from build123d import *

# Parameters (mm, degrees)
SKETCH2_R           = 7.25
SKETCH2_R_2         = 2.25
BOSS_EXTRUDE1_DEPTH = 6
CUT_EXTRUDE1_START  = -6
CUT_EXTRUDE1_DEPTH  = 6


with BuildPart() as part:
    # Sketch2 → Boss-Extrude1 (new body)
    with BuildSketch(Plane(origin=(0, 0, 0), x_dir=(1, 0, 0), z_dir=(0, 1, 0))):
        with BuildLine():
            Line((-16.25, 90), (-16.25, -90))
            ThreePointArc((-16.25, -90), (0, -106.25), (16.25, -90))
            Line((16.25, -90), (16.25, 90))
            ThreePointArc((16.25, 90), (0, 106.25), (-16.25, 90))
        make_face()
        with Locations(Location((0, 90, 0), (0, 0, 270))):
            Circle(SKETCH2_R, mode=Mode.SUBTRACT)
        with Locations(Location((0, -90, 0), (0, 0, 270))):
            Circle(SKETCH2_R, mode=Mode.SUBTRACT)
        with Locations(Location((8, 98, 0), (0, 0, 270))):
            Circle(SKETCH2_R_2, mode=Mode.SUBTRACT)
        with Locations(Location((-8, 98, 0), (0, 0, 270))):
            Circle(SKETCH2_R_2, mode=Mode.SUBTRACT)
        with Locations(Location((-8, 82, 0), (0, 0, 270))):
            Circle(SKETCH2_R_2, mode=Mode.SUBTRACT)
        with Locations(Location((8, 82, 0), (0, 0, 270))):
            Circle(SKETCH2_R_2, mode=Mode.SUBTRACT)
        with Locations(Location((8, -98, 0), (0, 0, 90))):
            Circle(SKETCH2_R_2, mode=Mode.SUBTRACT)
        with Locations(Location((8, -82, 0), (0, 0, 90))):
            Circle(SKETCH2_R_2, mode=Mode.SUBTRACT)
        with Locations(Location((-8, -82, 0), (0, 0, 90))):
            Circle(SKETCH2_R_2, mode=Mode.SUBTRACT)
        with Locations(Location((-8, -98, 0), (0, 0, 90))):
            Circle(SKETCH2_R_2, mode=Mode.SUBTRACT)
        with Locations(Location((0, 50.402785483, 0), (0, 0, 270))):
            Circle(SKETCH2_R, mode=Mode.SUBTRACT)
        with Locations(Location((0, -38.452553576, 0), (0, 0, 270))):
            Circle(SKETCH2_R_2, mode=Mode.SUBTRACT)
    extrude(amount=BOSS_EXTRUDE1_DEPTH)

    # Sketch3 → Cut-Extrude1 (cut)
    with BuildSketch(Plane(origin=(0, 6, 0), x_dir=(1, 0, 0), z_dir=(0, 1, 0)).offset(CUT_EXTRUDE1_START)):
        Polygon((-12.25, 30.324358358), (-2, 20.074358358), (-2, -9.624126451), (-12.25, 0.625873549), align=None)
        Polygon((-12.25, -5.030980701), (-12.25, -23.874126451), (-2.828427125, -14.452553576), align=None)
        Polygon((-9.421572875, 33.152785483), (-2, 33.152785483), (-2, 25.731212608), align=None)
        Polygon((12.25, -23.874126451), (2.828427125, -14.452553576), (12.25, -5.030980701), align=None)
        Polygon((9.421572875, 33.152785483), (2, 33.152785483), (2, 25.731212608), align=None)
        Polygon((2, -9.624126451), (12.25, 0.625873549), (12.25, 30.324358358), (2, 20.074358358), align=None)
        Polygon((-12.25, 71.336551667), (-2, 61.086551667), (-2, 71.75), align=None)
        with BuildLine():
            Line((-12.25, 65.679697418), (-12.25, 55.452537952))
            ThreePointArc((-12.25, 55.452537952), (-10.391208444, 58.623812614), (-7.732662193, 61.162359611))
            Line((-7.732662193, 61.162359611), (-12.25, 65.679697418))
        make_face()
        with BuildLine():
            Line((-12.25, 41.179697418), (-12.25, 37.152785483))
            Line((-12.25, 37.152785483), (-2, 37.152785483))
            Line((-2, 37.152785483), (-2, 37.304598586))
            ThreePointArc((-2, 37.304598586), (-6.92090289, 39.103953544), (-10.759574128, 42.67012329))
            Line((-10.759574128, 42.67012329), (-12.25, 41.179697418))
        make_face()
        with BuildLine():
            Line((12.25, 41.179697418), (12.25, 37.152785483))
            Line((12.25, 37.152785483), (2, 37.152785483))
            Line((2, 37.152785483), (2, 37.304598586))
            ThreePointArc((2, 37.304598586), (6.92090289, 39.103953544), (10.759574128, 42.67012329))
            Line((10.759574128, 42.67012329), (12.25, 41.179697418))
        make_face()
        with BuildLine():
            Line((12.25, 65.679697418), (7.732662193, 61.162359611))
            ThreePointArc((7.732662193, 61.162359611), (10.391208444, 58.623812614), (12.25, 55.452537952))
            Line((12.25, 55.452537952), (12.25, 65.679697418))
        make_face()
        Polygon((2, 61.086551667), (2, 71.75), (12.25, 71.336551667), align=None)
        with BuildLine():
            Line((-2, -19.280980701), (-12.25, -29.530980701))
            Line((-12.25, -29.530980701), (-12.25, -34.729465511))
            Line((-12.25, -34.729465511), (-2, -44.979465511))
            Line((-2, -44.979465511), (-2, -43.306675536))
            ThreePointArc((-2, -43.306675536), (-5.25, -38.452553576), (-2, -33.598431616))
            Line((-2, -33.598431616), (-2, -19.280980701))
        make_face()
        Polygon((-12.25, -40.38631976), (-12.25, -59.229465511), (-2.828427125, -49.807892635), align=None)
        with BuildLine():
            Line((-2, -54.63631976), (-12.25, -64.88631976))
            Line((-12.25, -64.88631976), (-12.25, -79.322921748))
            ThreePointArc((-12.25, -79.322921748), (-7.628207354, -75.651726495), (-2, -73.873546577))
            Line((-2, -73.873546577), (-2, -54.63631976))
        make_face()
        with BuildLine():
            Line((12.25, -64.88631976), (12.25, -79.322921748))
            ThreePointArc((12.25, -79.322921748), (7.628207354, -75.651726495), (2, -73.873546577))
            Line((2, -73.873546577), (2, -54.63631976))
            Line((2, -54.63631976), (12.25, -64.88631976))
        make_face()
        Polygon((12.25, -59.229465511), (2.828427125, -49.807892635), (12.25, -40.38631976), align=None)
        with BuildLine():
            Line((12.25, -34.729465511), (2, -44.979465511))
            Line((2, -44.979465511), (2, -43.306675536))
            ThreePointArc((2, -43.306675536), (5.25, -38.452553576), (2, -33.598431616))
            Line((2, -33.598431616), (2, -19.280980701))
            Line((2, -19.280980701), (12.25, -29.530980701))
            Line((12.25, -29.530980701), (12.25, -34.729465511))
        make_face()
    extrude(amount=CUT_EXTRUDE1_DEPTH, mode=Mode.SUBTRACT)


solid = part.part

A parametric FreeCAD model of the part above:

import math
import FreeCAD as App
import Part
import Sketcher


def add_polygon(sketch, points):
    """Adds a closed chain of lines whose ends are joined by coincident constraints."""
    first, n = sketch.GeometryCount, len(points)
    for a, b in zip(points, points[1:] + points[:1]):
        sketch.addGeometry(Part.LineSegment(App.Vector(*a, 0), App.Vector(*b, 0)), False)
    for i in range(n):
        sketch.addConstraint(Sketcher.Constraint("Coincident", first + i, 2, first + (i + 1) % n, 1))

doc = App.newDocument("Part")
body = doc.addObject("PartDesign::Body", "Body")

sketch1 = body.newObject("Sketcher::SketchObject", "Sketch")
sketch1.AttachmentSupport = (doc.getObject("XZ_Plane"), [""])
sketch1.MapMode = "FlatFace"
sketch1.addGeometry([
    Part.LineSegment(App.Vector(-16.25, -90, 0), App.Vector(-16.25, 90, 0)),
    Part.ArcOfCircle(Part.Circle(App.Vector(0, 90, 0), App.Vector(0, 0, 1), 16.25), math.radians(0), math.radians(180)),
    Part.LineSegment(App.Vector(16.25, 90, 0), App.Vector(16.25, -90, 0)),
    Part.ArcOfCircle(Part.Circle(App.Vector(0, -90, 0), App.Vector(0, 0, 1), 16.25), math.radians(180), math.radians(360)),
    Part.Circle(App.Vector(-8, 98, 0), App.Vector(0, 0, 1), 2.25),
    Part.Circle(App.Vector(-8, 82, 0), App.Vector(0, 0, 1), 2.25),
    Part.Circle(App.Vector(0, 90, 0), App.Vector(0, 0, 1), 7.25),
    Part.Circle(App.Vector(8, 98, 0), App.Vector(0, 0, 1), 2.25),
    Part.Circle(App.Vector(8, 82, 0), App.Vector(0, 0, 1), 2.25),
    Part.Circle(App.Vector(0, 38.452554, 0), App.Vector(0, 0, 1), 2.25),
    Part.Circle(App.Vector(-8, -82, 0), App.Vector(0, 0, 1), 2.25),
    Part.Circle(App.Vector(-8, -98, 0), App.Vector(0, 0, 1), 2.25),
    Part.Circle(App.Vector(0, -50.402785, 0), App.Vector(0, 0, 1), 7.25),
    Part.Circle(App.Vector(0, -90, 0), App.Vector(0, 0, 1), 7.25),
    Part.Circle(App.Vector(8, -82, 0), App.Vector(0, 0, 1), 2.25),
    Part.Circle(App.Vector(8, -98, 0), App.Vector(0, 0, 1), 2.25),
], False)
sketch1.addConstraint([
    Sketcher.Constraint("Tangent", 0, 2, 1, 2),
    Sketcher.Constraint("Tangent", 1, 1, 2, 1),
    Sketcher.Constraint("Tangent", 2, 2, 3, 2),
    Sketcher.Constraint("Tangent", 3, 1, 0, 1),
    Sketcher.Constraint("Vertical", 0),
    Sketcher.Constraint("Vertical", 2),
    Sketcher.Constraint("Coincident", 6, 3, 1, 3),
    Sketcher.Constraint("Coincident", 13, 3, 3, 3),
    Sketcher.Constraint("Equal", 4, 5),
    Sketcher.Constraint("Equal", 5, 7),
    Sketcher.Constraint("Equal", 7, 8),
    Sketcher.Constraint("Equal", 8, 9),
    Sketcher.Constraint("Equal", 9, 10),
    Sketcher.Constraint("Equal", 10, 11),
    Sketcher.Constraint("Equal", 6, 12),
    Sketcher.Constraint("Equal", 12, 13),
    Sketcher.Constraint("Equal", 11, 14),
    Sketcher.Constraint("Equal", 14, 15),
    Sketcher.Constraint("Symmetric", 1, 3, 3, 3, -1, 1),
    Sketcher.Constraint("Symmetric", 8, 3, 10, 3, -1, 1),
    Sketcher.Constraint("Symmetric", 7, 3, 11, 3, -1, 1),
    Sketcher.Constraint("Symmetric", 5, 3, 14, 3, -1, 1),
    Sketcher.Constraint("Symmetric", 4, 3, 15, 3, -1, 1),
    Sketcher.Constraint("Symmetric", 4, 3, 7, 3, -2),
    Sketcher.Constraint("Symmetric", 5, 3, 8, 3, -2),
    Sketcher.Constraint("PointOnObject", 9, 3, -2),
    Sketcher.Constraint("PointOnObject", 12, 3, -2),
    Sketcher.Constraint("Vertical", 4, 3, 5, 3),
    Sketcher.Constraint("Diameter", 4, 4.5),
    Sketcher.Constraint("Diameter", 6, 14.5),
    Sketcher.Constraint("DistanceY", 0, 1, 0, 2, 180.0),
    Sketcher.Constraint("Radius", 1, 16.25),
    Sketcher.Constraint("DistanceX", 4, 3, -1, 1, 8.0),
    Sketcher.Constraint("DistanceY", -1, 1, 4, 3, 98.0),
    Sketcher.Constraint("DistanceY", -1, 1, 5, 3, 82.0),
    Sketcher.Constraint("DistanceY", 12, 3, 9, 3, 88.855339),
    Sketcher.Constraint("DistanceY", -1, 1, 9, 3, 38.452554),
])
pad1 = body.newObject("PartDesign::Pad", "Pad")
pad1.Profile = sketch1
pad1.Length = 6
pad1.Reversed = True

sketch2 = body.newObject("Sketcher::SketchObject", "Sketch001")
sketch2.AttachmentSupport = (doc.getObject("XZ_Plane"), [""])
sketch2.MapMode = "FlatFace"
add_polygon(sketch2, [(-2, -20.074358), (-12.25, -30.324358), (-12.25, -0.625874), (-2, 9.624126)])
add_polygon(sketch2, [(-12.25, 5.030981), (-12.25, 23.874126), (-2.828427, 14.452554)])
add_polygon(sketch2, [(-2, -33.152785), (-9.421573, -33.152785), (-2, -25.731213)])
add_polygon(sketch2, [(2.828427, 14.452554), (12.25, 23.874126), (12.25, 5.030981)])
add_polygon(sketch2, [(9.421573, -33.152785), (2, -33.152785), (2, -25.731213)])
add_polygon(sketch2, [(2, 9.624126), (12.25, -0.625874), (12.25, -30.324358), (2, -20.074358)])
add_polygon(sketch2, [(-12.25, -71.336552), (-2, -61.086552), (-2, -71.75)])
sketch2.addGeometry(Part.LineSegment(App.Vector(-12.25, -65.679697, 0), App.Vector(-12.25, -55.452538, 0)), False)
sketch2.addGeometry(Part.ArcOfCircle(Part.Circle(App.Vector(0, -50.402785, 0), App.Vector(0, 0, 1), 13.25), math.radians(-157.597334), math.radians(-125.703947)), False)
sketch2.addGeometry(Part.LineSegment(App.Vector(-7.732662, -61.16236, 0), App.Vector(-12.25, -65.679697, 0)), False)
sketch2.addGeometry(Part.LineSegment(App.Vector(-12.25, -41.179697, 0), App.Vector(-12.25, -37.152785, 0)), False)
sketch2.addGeometry(Part.LineSegment(App.Vector(-12.25, -37.152785, 0), App.Vector(-2, -37.152785, 0)), False)
sketch2.addGeometry(Part.LineSegment(App.Vector(-2, -37.152785, 0), App.Vector(-2, -37.304599, 0)), False)
sketch2.addGeometry(Part.ArcOfCircle(Part.Circle(App.Vector(0, -50.402785, 0), App.Vector(0, 0, 1), 13.25), math.radians(98.681602), math.radians(144.296053)), False)
sketch2.addGeometry(Part.LineSegment(App.Vector(-10.759574, -42.670123, 0), App.Vector(-12.25, -41.179697, 0)), False)
sketch2.addGeometry(Part.LineSegment(App.Vector(12.25, -37.152785, 0), App.Vector(12.25, -41.179697, 0)), False)
sketch2.addGeometry(Part.LineSegment(App.Vector(12.25, -41.179697, 0), App.Vector(10.759574, -42.670123, 0)), False)
sketch2.addGeometry(Part.ArcOfCircle(Part.Circle(App.Vector(0, -50.402785, 0), App.Vector(0, 0, 1), 13.25), math.radians(35.703947), math.radians(81.318398)), False)
sketch2.addGeometry(Part.LineSegment(App.Vector(2, -37.304599, 0), App.Vector(2, -37.152785, 0)), False)
sketch2.addGeometry(Part.LineSegment(App.Vector(2, -37.152785, 0), App.Vector(12.25, -37.152785, 0)), False)
sketch2.addGeometry(Part.LineSegment(App.Vector(12.25, -65.679697, 0), App.Vector(7.732662, -61.16236, 0)), False)
sketch2.addGeometry(Part.ArcOfCircle(Part.Circle(App.Vector(0, -50.402785, 0), App.Vector(0, 0, 1), 13.25), math.radians(-54.296053), math.radians(-22.402666)), False)
sketch2.addGeometry(Part.LineSegment(App.Vector(12.25, -55.452538, 0), App.Vector(12.25, -65.679697, 0)), False)
add_polygon(sketch2, [(2, -71.75), (2, -61.086552), (12.25, -71.336552)])
sketch2.addGeometry(Part.LineSegment(App.Vector(-2, 19.280981, 0), App.Vector(-12.25, 29.530981, 0)), False)
sketch2.addGeometry(Part.LineSegment(App.Vector(-12.25, 29.530981, 0), App.Vector(-12.25, 34.729466, 0)), False)
sketch2.addGeometry(Part.LineSegment(App.Vector(-12.25, 34.729466, 0), App.Vector(-2, 44.979466, 0)), False)
sketch2.addGeometry(Part.LineSegment(App.Vector(-2, 44.979466, 0), App.Vector(-2, 43.306676, 0)), False)
sketch2.addGeometry(Part.ArcOfCircle(Part.Circle(App.Vector(0, 38.452554, 0), App.Vector(0, 0, 1), 5.25), math.radians(112.392688), math.radians(247.607312)), False)
sketch2.addGeometry(Part.LineSegment(App.Vector(-2, 33.598432, 0), App.Vector(-2, 19.280981, 0)), False)
add_polygon(sketch2, [(-12.25, 40.38632), (-12.25, 59.229466), (-2.828427, 49.807893)])
sketch2.addGeometry(Part.LineSegment(App.Vector(-2, 54.63632, 0), App.Vector(-12.25, 64.88632, 0)), False)
sketch2.addGeometry(Part.LineSegment(App.Vector(-12.25, 64.88632, 0), App.Vector(-12.25, 79.322922, 0)), False)
sketch2.addGeometry(Part.ArcOfCircle(Part.Circle(App.Vector(0, 90, 0), App.Vector(0, 0, 1), 16.25), math.radians(-138.924651), math.radians(-97.069714)), False)
sketch2.addGeometry(Part.LineSegment(App.Vector(-2, 73.873547, 0), App.Vector(-2, 54.63632, 0)), False)
sketch2.addGeometry(Part.LineSegment(App.Vector(12.25, 79.322922, 0), App.Vector(12.25, 64.88632, 0)), False)
sketch2.addGeometry(Part.LineSegment(App.Vector(12.25, 64.88632, 0), App.Vector(2, 54.63632, 0)), False)
sketch2.addGeometry(Part.LineSegment(App.Vector(2, 54.63632, 0), App.Vector(2, 73.873547, 0)), False)
sketch2.addGeometry(Part.ArcOfCircle(Part.Circle(App.Vector(0, 90, 0), App.Vector(0, 0, 1), 16.25), math.radians(-82.930286), math.radians(-41.075349)), False)
add_polygon(sketch2, [(2.828427, 49.807893), (12.25, 59.229466), (12.25, 40.38632)])
sketch2.addGeometry(Part.LineSegment(App.Vector(2, 44.979466, 0), App.Vector(12.25, 34.729466, 0)), False)
sketch2.addGeometry(Part.LineSegment(App.Vector(12.25, 34.729466, 0), App.Vector(12.25, 29.530981, 0)), False)
sketch2.addGeometry(Part.LineSegment(App.Vector(12.25, 29.530981, 0), App.Vector(2, 19.280981, 0)), False)
sketch2.addGeometry(Part.LineSegment(App.Vector(2, 19.280981, 0), App.Vector(2, 33.598432, 0)), False)
sketch2.addGeometry(Part.ArcOfCircle(Part.Circle(App.Vector(0, 38.452554, 0), App.Vector(0, 0, 1), 5.25), math.radians(-67.607312), math.radians(67.607312)), False)
sketch2.addGeometry(Part.LineSegment(App.Vector(2, 43.306676, 0), App.Vector(2, 44.979466, 0)), False)
sketch2.addConstraint([
    Sketcher.Constraint("Coincident", 23, 2, 24, 1),
    Sketcher.Constraint("Coincident", 24, 2, 25, 1),
    Sketcher.Constraint("Coincident", 25, 2, 23, 1),
    Sketcher.Constraint("Coincident", 26, 2, 27, 1),
    Sketcher.Constraint("Coincident", 27, 2, 28, 1),
    Sketcher.Constraint("Coincident", 28, 2, 29, 1),
    Sketcher.Constraint("Coincident", 29, 2, 30, 1),
    Sketcher.Constraint("Coincident", 30, 2, 26, 1),
    Sketcher.Constraint("Coincident", 31, 2, 32, 1),
    Sketcher.Constraint("Coincident", 32, 2, 33, 1),
    Sketcher.Constraint("Coincident", 33, 2, 34, 1),
    Sketcher.Constraint("Coincident", 34, 2, 35, 1),
    Sketcher.Constraint("Coincident", 35, 2, 31, 1),
    Sketcher.Constraint("Coincident", 36, 2, 37, 1),
    Sketcher.Constraint("Coincident", 37, 2, 38, 1),
    Sketcher.Constraint("Coincident", 38, 2, 36, 1),
    Sketcher.Constraint("Coincident", 42, 2, 43, 1),
    Sketcher.Constraint("Coincident", 43, 2, 44, 1),
    Sketcher.Constraint("Coincident", 44, 2, 45, 1),
    Sketcher.Constraint("Coincident", 45, 2, 46, 1),
    Sketcher.Constraint("Coincident", 46, 2, 47, 1),
    Sketcher.Constraint("Coincident", 47, 2, 42, 1),
    Sketcher.Constraint("Coincident", 51, 2, 52, 1),
    Sketcher.Constraint("Coincident", 52, 2, 53, 1),
    Sketcher.Constraint("Coincident", 53, 2, 54, 1),
    Sketcher.Constraint("Coincident", 54, 2, 51, 1),
    Sketcher.Constraint("Coincident", 55, 2, 56, 1),
    Sketcher.Constraint("Coincident", 56, 2, 57, 1),
    Sketcher.Constraint("Coincident", 57, 2, 58, 1),
    Sketcher.Constraint("Coincident", 58, 2, 55, 1),
    Sketcher.Constraint("Coincident", 62, 2, 63, 1),
    Sketcher.Constraint("Coincident", 63, 2, 64, 1),
    Sketcher.Constraint("Coincident", 64, 2, 65, 1),
    Sketcher.Constraint("Coincident", 65, 2, 66, 1),
    Sketcher.Constraint("Coincident", 66, 2, 67, 1),
    Sketcher.Constraint("Coincident", 67, 2, 62, 1),
    Sketcher.Constraint("Vertical", 1),
    Sketcher.Constraint("Vertical", 3),
    Sketcher.Constraint("Vertical", 4),
    Sketcher.Constraint("Horizontal", 7),
    Sketcher.Constraint("Vertical", 9),
    Sketcher.Constraint("Vertical", 11),
    Sketcher.Constraint("Horizontal", 13),
    Sketcher.Constraint("Vertical", 14),
    Sketcher.Constraint("Vertical", 17),
    Sketcher.Constraint("Vertical", 19),
    Sketcher.Constraint("Vertical", 21),
    Sketcher.Constraint("Vertical", 23),
    Sketcher.Constraint("Vertical", 26),
    Sketcher.Constraint("Horizontal", 27),
    Sketcher.Constraint("Vertical", 28),
    Sketcher.Constraint("Vertical", 31),
    Sketcher.Constraint("Vertical", 34),
    Sketcher.Constraint("Horizontal", 35),
    Sketcher.Constraint("Vertical", 38),
    Sketcher.Constraint("Vertical", 39),
    Sketcher.Constraint("Vertical", 43),
    Sketcher.Constraint("Vertical", 45),
    Sketcher.Constraint("Vertical", 47),
    Sketcher.Constraint("Vertical", 48),
    Sketcher.Constraint("Vertical", 52),
    Sketcher.Constraint("Vertical", 54),
    Sketcher.Constraint("Vertical", 55),
    Sketcher.Constraint("Vertical", 57),
    Sketcher.Constraint("Vertical", 60),
    Sketcher.Constraint("Vertical", 63),
    Sketcher.Constraint("Vertical", 65),
    Sketcher.Constraint("Vertical", 67),
    Sketcher.Constraint("Coincident", 29, 3, 24, 3),
    Sketcher.Constraint("Coincident", 33, 3, 24, 3),
    Sketcher.Constraint("Coincident", 37, 3, 24, 3),
    Sketcher.Constraint("Coincident", 58, 3, 53, 3),
    Sketcher.Constraint("Coincident", 66, 3, 46, 3),
    Sketcher.Constraint("Equal", 24, 29),
    Sketcher.Constraint("Equal", 29, 33),
    Sketcher.Constraint("Equal", 33, 37),
    Sketcher.Constraint("Equal", 53, 58),
    Sketcher.Constraint("Equal", 46, 66),
    Sketcher.Constraint("Symmetric", 4, 2, 10, 2, -2),
    Sketcher.Constraint("Symmetric", 5, 2, 12, 2, -2),
    Sketcher.Constraint("Symmetric", 9, 2, 13, 2, -2),
    Sketcher.Constraint("Symmetric", 1, 2, 16, 2, -2),
    Sketcher.Constraint("Symmetric", 3, 2, 18, 2, -2),
    Sketcher.Constraint("Symmetric", 30, 2, 31, 2, -2),
    Sketcher.Constraint("Symmetric", 29, 2, 32, 2, -2),
    Sketcher.Constraint("Symmetric", 27, 2, 34, 2, -2),
    Sketcher.Constraint("Symmetric", 25, 2, 38, 2, -2),
    Sketcher.Constraint("Symmetric", 20, 2, 39, 2, -2),
    Sketcher.Constraint("Symmetric", 22, 2, 40, 2, -2),
    Sketcher.Constraint("Symmetric", 51, 2, 55, 2, -2),
    Sketcher.Constraint("Symmetric", 54, 2, 56, 2, -2),
    Sketcher.Constraint("Symmetric", 48, 2, 59, 2, -2),
    Sketcher.Constraint("Symmetric", 49, 2, 61, 2, -2),
    Sketcher.Constraint("Symmetric", 43, 2, 62, 2, -2),
    Sketcher.Constraint("Symmetric", 47, 2, 64, 2, -2),
    Sketcher.Constraint("Symmetric", 45, 2, 66, 2, -2),
    Sketcher.Constraint("PointOnObject", 53, 3, -2),
    Sketcher.Constraint("Parallel", 0, 2),
    Sketcher.Constraint("Perpendicular", 2, 5),
    Sketcher.Constraint("Perpendicular", 5, 6),
    Sketcher.Constraint("Parallel", 6, 8),
    Sketcher.Constraint("Parallel", 8, 10),
    Sketcher.Constraint("Perpendicular", 10, 12),
    Sketcher.Constraint("Parallel", 12, 15),
    Sketcher.Constraint("Parallel", 15, 16),
    Sketcher.Constraint("Parallel", 16, 18),
    Sketcher.Constraint("Perpendicular", 18, 20),
    Sketcher.Constraint("Parallel", 20, 25),
    Sketcher.Constraint("Perpendicular", 25, 30),
    Sketcher.Constraint("Perpendicular", 32, 36),
    Sketcher.Constraint("Parallel", 40, 42),
    Sketcher.Constraint("Perpendicular", 42, 44),
    Sketcher.Constraint("Perpendicular", 44, 49),
    Sketcher.Constraint("Perpendicular", 49, 50),
    Sketcher.Constraint("Perpendicular", 50, 51),
    Sketcher.Constraint("Perpendicular", 59, 61),
    Sketcher.Constraint("Parallel", 61, 62),
    Sketcher.Constraint("Perpendicular", 62, 64),
    Sketcher.Constraint("Horizontal", 8, 2, 14, 2),
    Sketcher.Constraint("Horizontal", 21, 2, 41, 2),
    Sketcher.Constraint("Vertical", 1, 2, 4, 2),
    Sketcher.Constraint("Vertical", 3, 2, 8, 2),
    Sketcher.Constraint("Vertical", 9, 2, 20, 2),
    Sketcher.Constraint("Vertical", 6, 2, 22, 2),
    Sketcher.Constraint("Vertical", 22, 2, 23, 2),
    Sketcher.Constraint("Vertical", 25, 2, 26, 2),
    Sketcher.Constraint("Vertical", 21, 2, 27, 2),
    Sketcher.Constraint("Vertical", 30, 2, 42, 2),
    Sketcher.Constraint("Vertical", 28, 2, 44, 2),
    Sketcher.Constraint("Vertical", 45, 2, 46, 2),
    Sketcher.Constraint("Vertical", 43, 2, 48, 2),
    Sketcher.Constraint("Vertical", 5, 2, 49, 2),
    Sketcher.Constraint("Vertical", 50, 2, 51, 2),
    Sketcher.Constraint("Vertical", 47, 2, 53, 2),
    Sketcher.Constraint("Radius", 24, 13.25),
    Sketcher.Constraint("Radius", 46, 5.25),
    Sketcher.Constraint("Radius", 53, 16.25),
    Sketcher.Constraint("DistanceY", -1, 1, 53, 3, 90.0),
    Sketcher.Constraint("DistanceX", 2, 2, -1, 1, 2.0),
    Sketcher.Constraint("DistanceX", 27, 1, 27, 2, 10.25),
    Sketcher.Constraint("DistanceY", 21, 2, -1, 1, 71.75),
    Sketcher.Constraint("DistanceY", 52, 1, 52, 2, 14.436602),
    Sketcher.Constraint("DistanceY", 21, 2, 21, 1, 10.663448),
    Sketcher.Constraint("DistanceY", 23, 1, 23, 2, 10.227159),
    Sketcher.Constraint("DistanceY", 26, 1, 26, 2, 4.026912),
    Sketcher.Constraint("DistanceY", 45, 2, 45, 1, 1.67279),
    Sketcher.Constraint("DistanceY", 47, 2, 47, 1, 14.317451),
    Sketcher.Constraint("DistanceY", 28, 2, -1, 1, 37.304599),
    Sketcher.Constraint("Distance", 8, 10.495689),
    Sketcher.Constraint("Distance", 30, 2.10778),
    Sketcher.Constraint("DistanceY", 1, 1, 1, 2, 29.698485),
    Sketcher.Constraint("DistanceY", 4, 1, 4, 2, 18.843146),
    Sketcher.Constraint("DistanceY", 0, 2, -1, 1, 30.324358),
    Sketcher.Constraint("DistanceY", -1, 1, 6, 2, 5.030981),
    Sketcher.Constraint("DistanceY", -1, 1, 42, 2, 29.530981),
    Sketcher.Constraint("DistanceY", -1, 1, 50, 2, 40.38632),
    Sketcher.Constraint("DistanceY", 7, 2, -1, 1, 33.152785),
])
pocket1 = body.newObject("PartDesign::Pocket", "Pocket")
pocket1.Profile = sketch2
pocket1.Length = 6

doc.recompute()
